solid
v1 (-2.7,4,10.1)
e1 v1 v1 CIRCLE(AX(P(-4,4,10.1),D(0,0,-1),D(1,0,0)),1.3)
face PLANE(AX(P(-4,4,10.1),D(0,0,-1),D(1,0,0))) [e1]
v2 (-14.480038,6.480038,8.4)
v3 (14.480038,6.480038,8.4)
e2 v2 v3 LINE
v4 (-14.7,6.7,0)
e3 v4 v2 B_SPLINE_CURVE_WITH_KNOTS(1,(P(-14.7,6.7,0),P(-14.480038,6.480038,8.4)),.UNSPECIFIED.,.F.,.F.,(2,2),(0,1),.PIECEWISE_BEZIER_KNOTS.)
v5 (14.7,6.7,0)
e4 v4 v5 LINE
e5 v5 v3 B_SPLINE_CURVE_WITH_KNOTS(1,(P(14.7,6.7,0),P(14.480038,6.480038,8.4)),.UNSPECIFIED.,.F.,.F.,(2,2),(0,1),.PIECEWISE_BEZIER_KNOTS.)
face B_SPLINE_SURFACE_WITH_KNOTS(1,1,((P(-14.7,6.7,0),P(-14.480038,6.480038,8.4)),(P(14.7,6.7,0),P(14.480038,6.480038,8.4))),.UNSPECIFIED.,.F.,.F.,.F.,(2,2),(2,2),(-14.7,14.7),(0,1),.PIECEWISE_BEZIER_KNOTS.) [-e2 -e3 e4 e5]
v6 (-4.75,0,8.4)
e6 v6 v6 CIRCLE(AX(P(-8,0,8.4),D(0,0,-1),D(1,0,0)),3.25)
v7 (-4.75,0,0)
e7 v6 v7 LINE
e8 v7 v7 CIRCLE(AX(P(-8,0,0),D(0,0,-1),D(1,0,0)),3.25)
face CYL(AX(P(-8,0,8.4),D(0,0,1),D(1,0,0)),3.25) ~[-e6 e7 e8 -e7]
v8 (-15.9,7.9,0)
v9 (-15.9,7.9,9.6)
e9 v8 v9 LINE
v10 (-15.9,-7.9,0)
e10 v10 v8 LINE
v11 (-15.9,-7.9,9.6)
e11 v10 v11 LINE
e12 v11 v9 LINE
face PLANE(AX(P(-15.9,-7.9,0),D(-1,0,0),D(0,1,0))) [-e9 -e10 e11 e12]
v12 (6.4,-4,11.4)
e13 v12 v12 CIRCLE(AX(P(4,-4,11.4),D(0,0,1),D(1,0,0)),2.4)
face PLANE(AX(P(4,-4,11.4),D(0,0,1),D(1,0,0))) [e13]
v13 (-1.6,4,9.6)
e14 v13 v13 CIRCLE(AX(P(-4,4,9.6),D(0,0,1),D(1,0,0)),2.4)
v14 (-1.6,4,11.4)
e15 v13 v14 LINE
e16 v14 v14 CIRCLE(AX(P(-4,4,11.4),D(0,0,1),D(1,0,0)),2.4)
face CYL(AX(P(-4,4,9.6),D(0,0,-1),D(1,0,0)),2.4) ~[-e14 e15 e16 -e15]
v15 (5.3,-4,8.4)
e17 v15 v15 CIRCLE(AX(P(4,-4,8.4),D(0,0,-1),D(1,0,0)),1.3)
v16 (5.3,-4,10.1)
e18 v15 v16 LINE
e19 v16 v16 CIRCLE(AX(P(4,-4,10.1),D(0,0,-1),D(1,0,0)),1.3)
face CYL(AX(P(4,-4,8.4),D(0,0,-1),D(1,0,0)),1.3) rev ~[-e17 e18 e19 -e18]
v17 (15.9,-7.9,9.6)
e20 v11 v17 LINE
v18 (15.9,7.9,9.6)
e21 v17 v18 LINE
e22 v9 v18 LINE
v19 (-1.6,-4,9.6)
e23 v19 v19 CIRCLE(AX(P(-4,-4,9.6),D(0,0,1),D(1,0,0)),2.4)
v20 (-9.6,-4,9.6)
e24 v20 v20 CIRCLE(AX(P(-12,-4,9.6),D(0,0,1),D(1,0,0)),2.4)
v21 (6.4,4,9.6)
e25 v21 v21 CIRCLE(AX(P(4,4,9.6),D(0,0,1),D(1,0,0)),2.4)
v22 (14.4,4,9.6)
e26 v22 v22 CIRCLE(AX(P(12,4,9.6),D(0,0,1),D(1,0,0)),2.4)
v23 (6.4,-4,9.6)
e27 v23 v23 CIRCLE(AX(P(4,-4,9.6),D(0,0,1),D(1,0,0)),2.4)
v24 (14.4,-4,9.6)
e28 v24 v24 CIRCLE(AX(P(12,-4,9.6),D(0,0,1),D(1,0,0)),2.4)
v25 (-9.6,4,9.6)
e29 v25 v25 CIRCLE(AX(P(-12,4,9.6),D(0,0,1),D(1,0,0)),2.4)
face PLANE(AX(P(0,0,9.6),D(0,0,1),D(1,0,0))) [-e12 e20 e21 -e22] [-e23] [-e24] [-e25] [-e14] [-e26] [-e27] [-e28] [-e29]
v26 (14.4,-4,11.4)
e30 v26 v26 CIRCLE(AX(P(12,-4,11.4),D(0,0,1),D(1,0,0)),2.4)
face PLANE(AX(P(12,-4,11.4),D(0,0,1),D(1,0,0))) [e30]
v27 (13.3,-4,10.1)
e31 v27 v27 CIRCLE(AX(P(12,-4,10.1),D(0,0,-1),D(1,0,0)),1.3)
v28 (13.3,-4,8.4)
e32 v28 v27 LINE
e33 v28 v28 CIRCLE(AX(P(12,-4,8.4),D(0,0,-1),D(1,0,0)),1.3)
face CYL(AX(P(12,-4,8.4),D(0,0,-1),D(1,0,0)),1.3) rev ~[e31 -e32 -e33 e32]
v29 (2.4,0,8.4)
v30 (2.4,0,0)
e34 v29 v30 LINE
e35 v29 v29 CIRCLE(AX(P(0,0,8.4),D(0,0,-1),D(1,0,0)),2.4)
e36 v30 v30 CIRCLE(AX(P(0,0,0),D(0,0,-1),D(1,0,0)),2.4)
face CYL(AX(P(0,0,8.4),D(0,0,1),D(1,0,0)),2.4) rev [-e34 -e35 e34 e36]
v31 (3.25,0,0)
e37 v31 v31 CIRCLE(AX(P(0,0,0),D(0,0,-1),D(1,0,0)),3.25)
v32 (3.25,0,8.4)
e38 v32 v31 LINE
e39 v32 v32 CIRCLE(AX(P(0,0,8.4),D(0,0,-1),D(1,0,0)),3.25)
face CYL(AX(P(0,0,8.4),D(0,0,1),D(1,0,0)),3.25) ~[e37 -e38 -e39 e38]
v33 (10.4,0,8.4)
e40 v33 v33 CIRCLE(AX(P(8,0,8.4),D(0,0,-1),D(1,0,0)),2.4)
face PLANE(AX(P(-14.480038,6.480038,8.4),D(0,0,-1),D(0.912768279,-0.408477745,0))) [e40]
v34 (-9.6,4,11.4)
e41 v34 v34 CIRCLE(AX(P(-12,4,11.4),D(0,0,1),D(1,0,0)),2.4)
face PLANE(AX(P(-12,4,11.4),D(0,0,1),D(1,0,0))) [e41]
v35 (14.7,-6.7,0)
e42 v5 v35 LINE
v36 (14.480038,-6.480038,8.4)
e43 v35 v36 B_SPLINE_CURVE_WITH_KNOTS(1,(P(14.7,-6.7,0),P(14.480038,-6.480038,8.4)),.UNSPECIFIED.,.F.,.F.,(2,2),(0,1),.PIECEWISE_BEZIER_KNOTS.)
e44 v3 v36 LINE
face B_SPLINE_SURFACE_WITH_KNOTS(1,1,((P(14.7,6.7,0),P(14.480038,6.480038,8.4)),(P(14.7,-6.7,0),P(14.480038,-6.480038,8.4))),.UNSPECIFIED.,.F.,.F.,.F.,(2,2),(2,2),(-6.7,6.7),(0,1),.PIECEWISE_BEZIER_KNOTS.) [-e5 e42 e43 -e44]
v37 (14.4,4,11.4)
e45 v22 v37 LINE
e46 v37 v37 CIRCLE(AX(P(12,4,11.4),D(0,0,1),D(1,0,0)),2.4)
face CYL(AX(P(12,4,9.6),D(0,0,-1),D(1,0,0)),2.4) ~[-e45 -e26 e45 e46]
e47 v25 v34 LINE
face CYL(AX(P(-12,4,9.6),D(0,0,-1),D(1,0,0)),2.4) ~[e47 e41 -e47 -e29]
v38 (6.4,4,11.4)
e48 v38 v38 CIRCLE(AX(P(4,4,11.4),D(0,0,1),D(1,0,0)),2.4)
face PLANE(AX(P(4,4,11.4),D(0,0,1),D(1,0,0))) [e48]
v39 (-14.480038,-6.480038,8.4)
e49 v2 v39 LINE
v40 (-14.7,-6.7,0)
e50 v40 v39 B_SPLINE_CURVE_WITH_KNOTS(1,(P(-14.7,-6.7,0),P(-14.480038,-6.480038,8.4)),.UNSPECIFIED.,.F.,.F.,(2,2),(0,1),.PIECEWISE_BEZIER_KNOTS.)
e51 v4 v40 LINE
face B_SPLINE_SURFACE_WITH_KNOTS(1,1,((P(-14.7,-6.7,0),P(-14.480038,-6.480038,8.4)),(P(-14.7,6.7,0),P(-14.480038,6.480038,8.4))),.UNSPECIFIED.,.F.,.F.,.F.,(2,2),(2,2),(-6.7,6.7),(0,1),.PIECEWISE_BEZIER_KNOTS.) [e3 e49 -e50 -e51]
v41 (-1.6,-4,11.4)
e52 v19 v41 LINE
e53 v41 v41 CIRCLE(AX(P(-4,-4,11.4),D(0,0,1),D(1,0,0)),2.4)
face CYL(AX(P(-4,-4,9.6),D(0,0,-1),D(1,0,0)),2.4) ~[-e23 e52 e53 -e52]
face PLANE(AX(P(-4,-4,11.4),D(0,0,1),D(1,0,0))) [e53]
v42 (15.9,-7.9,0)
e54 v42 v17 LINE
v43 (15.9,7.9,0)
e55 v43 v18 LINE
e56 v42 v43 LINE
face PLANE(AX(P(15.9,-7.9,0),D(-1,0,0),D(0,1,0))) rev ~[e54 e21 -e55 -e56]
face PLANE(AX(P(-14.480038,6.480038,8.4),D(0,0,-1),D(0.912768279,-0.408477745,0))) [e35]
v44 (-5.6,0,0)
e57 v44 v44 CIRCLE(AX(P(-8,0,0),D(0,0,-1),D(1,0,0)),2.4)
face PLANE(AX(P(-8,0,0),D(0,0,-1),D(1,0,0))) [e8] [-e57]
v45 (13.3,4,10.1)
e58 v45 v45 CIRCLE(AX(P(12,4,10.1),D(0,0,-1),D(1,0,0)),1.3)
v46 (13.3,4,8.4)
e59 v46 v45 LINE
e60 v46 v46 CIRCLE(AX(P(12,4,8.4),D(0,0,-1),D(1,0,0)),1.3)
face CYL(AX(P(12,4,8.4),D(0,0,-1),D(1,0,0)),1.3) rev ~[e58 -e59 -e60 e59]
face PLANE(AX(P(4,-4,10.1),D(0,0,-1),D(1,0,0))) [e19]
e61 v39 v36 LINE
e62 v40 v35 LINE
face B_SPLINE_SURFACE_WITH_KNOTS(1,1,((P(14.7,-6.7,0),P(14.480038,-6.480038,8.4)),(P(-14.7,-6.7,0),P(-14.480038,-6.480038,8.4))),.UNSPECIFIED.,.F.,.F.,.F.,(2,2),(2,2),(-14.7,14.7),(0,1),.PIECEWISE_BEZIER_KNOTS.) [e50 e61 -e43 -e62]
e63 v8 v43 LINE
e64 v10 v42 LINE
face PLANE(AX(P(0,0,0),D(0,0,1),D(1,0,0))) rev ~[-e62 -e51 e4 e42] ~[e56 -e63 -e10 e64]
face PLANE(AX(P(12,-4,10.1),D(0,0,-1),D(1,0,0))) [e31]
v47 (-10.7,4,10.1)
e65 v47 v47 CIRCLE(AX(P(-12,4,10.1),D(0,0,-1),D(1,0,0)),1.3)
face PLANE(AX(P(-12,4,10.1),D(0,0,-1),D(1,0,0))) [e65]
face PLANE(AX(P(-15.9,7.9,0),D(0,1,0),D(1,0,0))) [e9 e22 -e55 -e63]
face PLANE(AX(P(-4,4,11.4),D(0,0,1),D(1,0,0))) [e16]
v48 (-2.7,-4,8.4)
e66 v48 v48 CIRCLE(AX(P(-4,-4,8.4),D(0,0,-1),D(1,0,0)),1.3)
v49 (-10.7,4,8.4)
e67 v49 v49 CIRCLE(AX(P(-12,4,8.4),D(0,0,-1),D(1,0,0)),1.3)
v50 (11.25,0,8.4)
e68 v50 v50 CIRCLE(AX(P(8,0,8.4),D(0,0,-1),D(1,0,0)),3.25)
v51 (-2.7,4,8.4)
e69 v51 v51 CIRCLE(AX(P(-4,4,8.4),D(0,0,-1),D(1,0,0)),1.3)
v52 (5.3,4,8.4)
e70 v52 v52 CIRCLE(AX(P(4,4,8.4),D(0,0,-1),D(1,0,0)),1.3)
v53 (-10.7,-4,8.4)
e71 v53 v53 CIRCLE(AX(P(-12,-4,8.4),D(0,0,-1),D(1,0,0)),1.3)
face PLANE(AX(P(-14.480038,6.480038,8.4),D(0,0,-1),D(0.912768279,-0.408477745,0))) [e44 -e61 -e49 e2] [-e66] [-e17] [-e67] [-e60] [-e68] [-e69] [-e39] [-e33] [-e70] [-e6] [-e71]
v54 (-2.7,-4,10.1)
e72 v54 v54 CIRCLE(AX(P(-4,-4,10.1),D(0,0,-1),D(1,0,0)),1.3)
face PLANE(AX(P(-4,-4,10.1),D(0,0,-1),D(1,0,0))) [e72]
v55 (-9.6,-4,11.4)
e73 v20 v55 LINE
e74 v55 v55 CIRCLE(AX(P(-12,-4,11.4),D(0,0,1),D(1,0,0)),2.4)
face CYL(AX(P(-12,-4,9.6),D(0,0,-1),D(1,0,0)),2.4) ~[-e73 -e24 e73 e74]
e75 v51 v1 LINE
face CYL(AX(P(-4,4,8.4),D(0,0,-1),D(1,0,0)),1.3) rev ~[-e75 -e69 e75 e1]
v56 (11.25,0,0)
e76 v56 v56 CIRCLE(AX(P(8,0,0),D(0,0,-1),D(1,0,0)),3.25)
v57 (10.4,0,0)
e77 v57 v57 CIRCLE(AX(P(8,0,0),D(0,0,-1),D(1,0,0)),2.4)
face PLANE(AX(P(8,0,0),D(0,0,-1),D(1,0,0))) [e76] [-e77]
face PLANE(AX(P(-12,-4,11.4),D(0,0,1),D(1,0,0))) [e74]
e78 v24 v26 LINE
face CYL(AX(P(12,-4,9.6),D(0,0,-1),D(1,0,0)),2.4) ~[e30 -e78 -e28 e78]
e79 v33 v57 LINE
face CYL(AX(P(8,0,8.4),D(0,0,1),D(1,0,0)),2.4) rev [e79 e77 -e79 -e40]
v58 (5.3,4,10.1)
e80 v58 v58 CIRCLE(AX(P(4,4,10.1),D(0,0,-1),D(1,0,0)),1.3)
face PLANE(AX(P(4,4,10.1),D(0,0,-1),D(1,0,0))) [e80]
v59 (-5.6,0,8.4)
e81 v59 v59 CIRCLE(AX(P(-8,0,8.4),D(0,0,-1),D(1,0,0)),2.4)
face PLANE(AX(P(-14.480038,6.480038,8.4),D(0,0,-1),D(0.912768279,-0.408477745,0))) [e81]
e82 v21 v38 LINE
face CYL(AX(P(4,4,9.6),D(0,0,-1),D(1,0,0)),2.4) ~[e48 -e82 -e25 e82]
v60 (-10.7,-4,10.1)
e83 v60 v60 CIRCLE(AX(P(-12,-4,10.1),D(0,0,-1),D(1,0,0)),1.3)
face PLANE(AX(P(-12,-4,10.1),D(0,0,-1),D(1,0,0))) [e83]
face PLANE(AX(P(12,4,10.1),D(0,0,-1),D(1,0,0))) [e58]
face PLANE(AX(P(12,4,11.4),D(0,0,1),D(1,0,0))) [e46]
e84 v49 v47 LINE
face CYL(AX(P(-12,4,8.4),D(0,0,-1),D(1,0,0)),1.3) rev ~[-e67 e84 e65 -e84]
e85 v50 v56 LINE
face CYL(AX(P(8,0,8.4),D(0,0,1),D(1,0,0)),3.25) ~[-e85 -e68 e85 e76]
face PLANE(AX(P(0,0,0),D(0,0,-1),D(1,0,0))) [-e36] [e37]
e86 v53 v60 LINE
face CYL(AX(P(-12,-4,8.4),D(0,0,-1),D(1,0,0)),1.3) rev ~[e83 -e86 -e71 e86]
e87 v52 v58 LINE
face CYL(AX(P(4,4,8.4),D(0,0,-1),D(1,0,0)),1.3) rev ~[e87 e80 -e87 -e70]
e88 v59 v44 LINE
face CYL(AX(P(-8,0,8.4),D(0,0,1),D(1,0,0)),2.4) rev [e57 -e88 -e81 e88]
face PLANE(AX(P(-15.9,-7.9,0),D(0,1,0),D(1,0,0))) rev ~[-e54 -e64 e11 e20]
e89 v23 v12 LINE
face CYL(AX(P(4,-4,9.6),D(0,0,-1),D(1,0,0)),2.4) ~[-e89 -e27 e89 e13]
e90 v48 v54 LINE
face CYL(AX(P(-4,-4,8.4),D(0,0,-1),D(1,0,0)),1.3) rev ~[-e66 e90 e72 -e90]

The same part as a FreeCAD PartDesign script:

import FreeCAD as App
import Part
import Sketcher
Q = App.Units.Quantity

doc = App.newDocument("Part")
params = doc.addObject("Spreadsheet::Sheet", "Params")
for row, (alias, value) in enumerate([
    ("sketch1_width", "31.8 mm"),
    ("sketch1_height", "15.8 mm"),
    ("pad1_length", "9.6 mm"),
    ("sketch2_diameter", "4.8 mm"),
    ("pad2_length", "1.8 mm"),
    ("sketch3_width", "29.4 mm"),
    ("sketch3_height", "13.4 mm"),
    ("pocket1_length", "8.4 mm"),
    ("pocket1_taper", "-1.5 deg"),
    ("sketch4_diameter", "2.6 mm"),
    ("pocket2_length", "1.7 mm"),
    ("sketch5_diameter", "6.5 mm"),
    ("sketch5_diameter2", "4.8 mm"),
    ("pad3_length", "8.4 mm"),
], start=1):
    params.set(f"A{row}", alias)
    params.set(f"B{row}", "=" + value)
    params.setAlias(f"B{row}", alias)

body = doc.addObject("PartDesign::Body", "Body")

sketch1 = doc.addObject("Sketcher::SketchObject", "Sketch")
body.addObject(sketch1)
sketch1.AttachmentSupport = (doc.XY_Plane, [""])
sketch1.MapMode = "FlatFace"
sketch1.addGeometry([
    Part.LineSegment(App.Vector(-15.9, 7.9, 0), App.Vector(-15.9, -7.9, 0)),
    Part.LineSegment(App.Vector(-15.9, -7.9, 0), App.Vector(15.9, -7.9, 0)),
    Part.LineSegment(App.Vector(15.9, -7.9, 0), App.Vector(15.9, 7.9, 0)),
    Part.LineSegment(App.Vector(15.9, 7.9, 0), App.Vector(-15.9, 7.9, 0)),
], False)
sketch1.addConstraint([
    Sketcher.Constraint("Coincident", 0, 2, 1, 1),
    Sketcher.Constraint("Coincident", 1, 2, 2, 1),
    Sketcher.Constraint("Coincident", 2, 2, 3, 1),
    Sketcher.Constraint("Coincident", 3, 2, 0, 1),
    Sketcher.Constraint("Vertical", 0),
    Sketcher.Constraint("Horizontal", 1),
    Sketcher.Constraint("Vertical", 2),
    Sketcher.Constraint("Horizontal", 3),
    Sketcher.Constraint("Symmetric", 0, 2, 2, 2, -1, 1),
    Sketcher.Constraint("DistanceX", 1, 1, 1, 2, Q("31.8 mm")),
    Sketcher.Constraint("DistanceY", 0, 2, 0, 1, Q("15.8 mm")),
])
sketch1.setExpression("Constraints[9]", "Params.sketch1_width")
sketch1.setExpression("Constraints[10]", "Params.sketch1_height")
pad1 = doc.addObject("PartDesign::Pad", "Pad")
body.addObject(pad1)
pad1.Profile = sketch1
pad1.setExpression("Length", "Params.pad1_length")

sketch2 = doc.addObject("Sketcher::SketchObject", "Sketch001")
body.addObject(sketch2)
sketch2.AttachmentSupport = (doc.XY_Plane, [""])
sketch2.MapMode = "FlatFace"
sketch2.AttachmentOffset = App.Placement(App.Vector(0, 0, 9.6), App.Rotation())
sketch2.addGeometry([
    Part.Circle(App.Vector(-12, 4, 0), App.Vector(0, 0, 1), 2.4),
    Part.Circle(App.Vector(-12, -4, 0), App.Vector(0, 0, 1), 2.4),
    Part.Circle(App.Vector(-4, 4, 0), App.Vector(0, 0, 1), 2.4),
    Part.Circle(App.Vector(-4, -4, 0), App.Vector(0, 0, 1), 2.4),
    Part.Circle(App.Vector(4, 4, 0), App.Vector(0, 0, 1), 2.4),
    Part.Circle(App.Vector(4, -4, 0), App.Vector(0, 0, 1), 2.4),
    Part.Circle(App.Vector(12, 4, 0), App.Vector(0, 0, 1), 2.4),
    Part.Circle(App.Vector(12, -4, 0), App.Vector(0, 0, 1), 2.4),
], False)
sketch2.addConstraint([
    Sketcher.Constraint("Equal", 0, 1),
    Sketcher.Constraint("Equal", 1, 2),
    Sketcher.Constraint("Equal", 2, 3),
    Sketcher.Constraint("Equal", 3, 4),
    Sketcher.Constraint("Equal", 4, 5),
    Sketcher.Constraint("Equal", 5, 6),
    Sketcher.Constraint("Equal", 6, 7),
    Sketcher.Constraint("Symmetric", 3, 3, 4, 3, -1, 1),
    Sketcher.Constraint("Symmetric", 2, 3, 5, 3, -1, 1),
    Sketcher.Constraint("Symmetric", 1, 3, 6, 3, -1, 1),
    Sketcher.Constraint("Symmetric", 0, 3, 7, 3, -1, 1),
    Sketcher.Constraint("Symmetric", 2, 3, 4, 3, -2),
    Sketcher.Constraint("Symmetric", 0, 3, 6, 3, -2),
    Sketcher.Constraint("Horizontal", 0, 3, 2, 3),
    Sketcher.Constraint("Diameter", 0, Q("4.8 mm")),
    Sketcher.Constraint("DistanceX", 0, 3, -1, 1, Q("12 mm")),
    Sketcher.Constraint("DistanceY", -1, 1, 0, 3, Q("4 mm")),
    Sketcher.Constraint("DistanceX", 2, 3, -1, 1, Q("4 mm")),
])
sketch2.setExpression("Constraints[14]", "Params.sketch2_diameter")
pad2 = doc.addObject("PartDesign::Pad", "Pad001")
body.addObject(pad2)
pad2.Profile = sketch2
pad2.setExpression("Length", "Params.pad2_length")

sketch3 = doc.addObject("Sketcher::SketchObject", "Sketch002")
body.addObject(sketch3)
sketch3.AttachmentSupport = (doc.XY_Plane, [""])
sketch3.MapMode = "FlatFace"
sketch3.addGeometry([
    Part.LineSegment(App.Vector(-14.7, -6.7, 0), App.Vector(-14.7, 6.7, 0)),
    Part.LineSegment(App.Vector(-14.7, 6.7, 0), App.Vector(14.7, 6.7, 0)),
    Part.LineSegment(App.Vector(14.7, 6.7, 0), App.Vector(14.7, -6.7, 0)),
    Part.LineSegment(App.Vector(14.7, -6.7, 0), App.Vector(-14.7, -6.7, 0)),
], False)
sketch3.addConstraint([
    Sketcher.Constraint("Coincident", 0, 2, 1, 1),
    Sketcher.Constraint("Coincident", 1, 2, 2, 1),
    Sketcher.Constraint("Coincident", 2, 2, 3, 1),
    Sketcher.Constraint("Coincident", 3, 2, 0, 1),
    Sketcher.Constraint("Vertical", 0),
    Sketcher.Constraint("Horizontal", 1),
    Sketcher.Constraint("Vertical", 2),
    Sketcher.Constraint("Horizontal", 3),
    Sketcher.Constraint("Symmetric", 0, 2, 2, 2, -1, 1),
    Sketcher.Constraint("DistanceX", 1, 1, 1, 2, Q("29.4 mm")),
    Sketcher.Constraint("DistanceY", 0, 1, 0, 2, Q("13.4 mm")),
])
sketch3.setExpression("Constraints[9]", "Params.sketch3_width")
sketch3.setExpression("Constraints[10]", "Params.sketch3_height")
pocket1 = doc.addObject("PartDesign::Pocket", "Pocket")
body.addObject(pocket1)
pocket1.Profile = sketch3
pocket1.setExpression("Length", "Params.pocket1_length")
pocket1.Reversed = True
pocket1.setExpression("TaperAngle", "Params.pocket1_taper")

sketch4 = doc.addObject("Sketcher::SketchObject", "Sketch003")
body.addObject(sketch4)
sketch4.AttachmentSupport = (doc.XY_Plane, [""])
sketch4.MapMode = "FlatFace"
sketch4.AttachmentOffset = App.Placement(App.Vector(0, 0, 8.4), App.Rotation())
sketch4.addGeometry([
    Part.Circle(App.Vector(-12, -4, 0), App.Vector(0, 0, 1), 1.3),
    Part.Circle(App.Vector(-4, -4, 0), App.Vector(0, 0, 1), 1.3),
    Part.Circle(App.Vector(4, -4, 0), App.Vector(0, 0, 1), 1.3),
    Part.Circle(App.Vector(12, -4, 0), App.Vector(0, 0, 1), 1.3),
    Part.Circle(App.Vector(12, 4, 0), App.Vector(0, 0, 1), 1.3),
    Part.Circle(App.Vector(4, 4, 0), App.Vector(0, 0, 1), 1.3),
    Part.Circle(App.Vector(-4, 4, 0), App.Vector(0, 0, 1), 1.3),
    Part.Circle(App.Vector(-12, 4, 0), App.Vector(0, 0, 1), 1.3),
], False)
sketch4.addConstraint([
    Sketcher.Constraint("Equal", 0, 1),
    Sketcher.Constraint("Equal", 1, 2),
    Sketcher.Constraint("Equal", 2, 3),
    Sketcher.Constraint("Equal", 3, 4),
    Sketcher.Constraint("Equal", 4, 5),
    Sketcher.Constraint("Equal", 5, 6),
    Sketcher.Constraint("Equal", 6, 7),
    Sketcher.Constraint("Symmetric", 0, 3, 4, 3, -1, 1),
    Sketcher.Constraint("Symmetric", 1, 3, 5, 3, -1, 1),
    Sketcher.Constraint("Symmetric", 2, 3, 6, 3, -1, 1),
    Sketcher.Constraint("Symmetric", 3, 3, 7, 3, -1, 1),
    Sketcher.Constraint("Symmetric", 1, 3, 2, 3, -2),
    Sketcher.Constraint("Symmetric", 0, 3, 3, 3, -2),
    Sketcher.Constraint("Horizontal", 0, 3, 1, 3),
    Sketcher.Constraint("Diameter", 0, Q("2.6 mm")),
    Sketcher.Constraint("DistanceX", 0, 3, -1, 1, Q("12 mm")),
    Sketcher.Constraint("DistanceY", 0, 3, -1, 1, Q("4 mm")),
    Sketcher.Constraint("DistanceX", 1, 3, -1, 1, Q("4 mm")),
])
sketch4.setExpression("Constraints[14]", "Params.sketch4_diameter")
pocket2 = doc.addObject("PartDesign::Pocket", "Pocket001")
body.addObject(pocket2)
pocket2.Profile = sketch4
pocket2.setExpression("Length", "Params.pocket2_length")
pocket2.Reversed = True

sketch5 = doc.addObject("Sketcher::SketchObject", "Sketch004")
body.addObject(sketch5)
sketch5.AttachmentSupport = (doc.XY_Plane, [""])
sketch5.MapMode = "FlatFace"
sketch5.AttachmentOffset = App.Placement(App.Vector(0, 0, 8.4), App.Rotation())
sketch5.addGeometry([
    Part.Circle(App.Vector(0, 0, 0), App.Vector(0, 0, 1), 3.25),
    Part.Circle(App.Vector(0, 0, 0), App.Vector(0, 0, 1), 2.4),
    Part.Circle(App.Vector(8, 0, 0), App.Vector(0, 0, 1), 3.25),
    Part.Circle(App.Vector(8, 0, 0), App.Vector(0, 0, 1), 2.4),
    Part.Circle(App.Vector(-8, 0, 0), App.Vector(0, 0, 1), 3.25),
    Part.Circle(App.Vector(-8, 0, 0), App.Vector(0, 0, 1), 2.4),
], False)
sketch5.addConstraint([
    Sketcher.Constraint("Coincident", 0, 3, -1, 1),
    Sketcher.Constraint("Coincident", 1, 3, -1, 1),
    Sketcher.Constraint("Coincident", 3, 3, 2, 3),
    Sketcher.Constraint("Coincident", 5, 3, 4, 3),
    Sketcher.Constraint("Equal", 0, 2),
    Sketcher.Constraint("Equal", 1, 3),
    Sketcher.Constraint("Equal", 2, 4),
    Sketcher.Constraint("Equal", 3, 5),
    Sketcher.Constraint("Symmetric", 2, 3, 4, 3, -1, 1),
    Sketcher.Constraint("PointOnObject", 2, 3, -1),
    Sketcher.Constraint("Diameter", 0, Q("6.5 mm")),
    Sketcher.Constraint("Diameter", 1, Q("4.8 mm")),
    Sketcher.Constraint("DistanceX", -1, 1, 2, 3, Q("8 mm")),
])
sketch5.setExpression("Constraints[10]", "Params.sketch5_diameter")
sketch5.setExpression("Constraints[11]", "Params.sketch5_diameter2")
pad3 = doc.addObject("PartDesign::Pad", "Pad002")
body.addObject(pad3)
pad3.Profile = sketch5
pad3.setExpression("Length", "Params.pad3_length")
pad3.Reversed = True

doc.recompute()
